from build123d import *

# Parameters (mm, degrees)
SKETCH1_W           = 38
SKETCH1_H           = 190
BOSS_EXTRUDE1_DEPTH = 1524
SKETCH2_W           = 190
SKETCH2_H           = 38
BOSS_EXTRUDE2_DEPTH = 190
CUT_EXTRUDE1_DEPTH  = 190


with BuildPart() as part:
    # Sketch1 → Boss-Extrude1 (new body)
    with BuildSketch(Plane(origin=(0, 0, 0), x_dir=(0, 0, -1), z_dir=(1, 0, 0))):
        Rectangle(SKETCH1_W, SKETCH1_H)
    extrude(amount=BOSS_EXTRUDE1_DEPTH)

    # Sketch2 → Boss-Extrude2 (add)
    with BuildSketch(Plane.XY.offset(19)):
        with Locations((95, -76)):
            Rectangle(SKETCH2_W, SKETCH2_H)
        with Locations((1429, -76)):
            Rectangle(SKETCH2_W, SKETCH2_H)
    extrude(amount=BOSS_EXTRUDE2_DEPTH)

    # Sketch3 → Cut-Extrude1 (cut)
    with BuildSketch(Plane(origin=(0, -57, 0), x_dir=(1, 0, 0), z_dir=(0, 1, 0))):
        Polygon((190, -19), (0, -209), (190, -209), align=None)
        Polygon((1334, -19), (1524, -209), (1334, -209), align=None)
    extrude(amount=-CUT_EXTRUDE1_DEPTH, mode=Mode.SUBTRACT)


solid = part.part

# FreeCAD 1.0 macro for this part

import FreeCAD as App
import Part
import Sketcher

V = App.Vector


def add_polygon(sketch, points):
    """Adds a closed chain of lines whose ends are joined by coincident constraints."""
    first, n = sketch.GeometryCount, len(points)
    for a, b in zip(points, points[1:] + points[:1]):
        sketch.addGeometry(Part.LineSegment(App.Vector(*a, 0), App.Vector(*b, 0)), False)
    for i in range(n):
        sketch.addConstraint(Sketcher.Constraint("Coincident", first + i, 2, first + (i + 1) % n, 1))

doc = App.newDocument("Part")
body = doc.addObject("PartDesign::Body", "Body")

# Sketch on YZ plane
sketch1 = body.newObject("Sketcher::SketchObject", "Sketch")
sketch1.AttachmentSupport = (doc.getObject("YZ_Plane"), [""])
sketch1.MapMode = "FlatFace"
add_polygon(sketch1, [(95, 19), (-95, 19), (-95, -19), (95, -19)])  # lines 0-3
sketch1.addConstraint([
    Sketcher.Constraint("Horizontal", 0),
    Sketcher.Constraint("Vertical", 1),
    Sketcher.Constraint("Horizontal", 2),
    Sketcher.Constraint("Vertical", 3),
    Sketcher.Constraint("Symmetric", 0, 2, 2, 2, -1, 1),
    Sketcher.Constraint("DistanceX", 0, 2, 0, 1, 190.0),
    Sketcher.Constraint("DistanceY", 1, 2, 1, 1, 38.0),
])
pad1 = body.newObject("PartDesign::Pad", "Pad")
pad1.Profile = sketch1
pad1.Length = 1524

# Sketch on XY plane
sketch2 = body.newObject("Sketcher::SketchObject", "Sketch001")
sketch2.AttachmentSupport = (doc.getObject("XY_Plane"), [""])
sketch2.MapMode = "FlatFace"
sketch2.AttachmentOffset = App.Placement(V(0, 0, 19), App.Rotation())
add_polygon(sketch2, [(0, -57), (0, -95), (190, -95), (190, -57)])  # lines 0-3
add_polygon(sketch2, [(1334, -57), (1334, -95), (1524, -95), (1524, -57)])  # lines 4-7
sketch2.addConstraint([
    Sketcher.Constraint("Vertical", 0),
    Sketcher.Constraint("Horizontal", 1),
    Sketcher.Constraint("Vertical", 2),
    Sketcher.Constraint("Horizontal", 3),
    Sketcher.Constraint("Vertical", 4),
    Sketcher.Constraint("Horizontal", 5),
    Sketcher.Constraint("Vertical", 6),
    Sketcher.Constraint("Horizontal", 7),
    Sketcher.Constraint("PointOnObject", 0, 2, -2),
    Sketcher.Constraint("Horizontal", 1, 2, 4, 2),
    Sketcher.Constraint("Horizontal", 3, 2, 6, 2),
    Sketcher.Constraint("Equal", 3, 5),
    Sketcher.Constraint("DistanceX", 1, 1, 1, 2, 190.0),
    Sketcher.Constraint("DistanceY", 0, 2, 0, 1, 38.0),
    Sketcher.Constraint("DistanceY", 0, 2, -1, 1, 95.0),
    Sketcher.Constraint("DistanceX", -1, 1, 4, 2, 1334.0),
])
pad2 = body.newObject("PartDesign::Pad", "Pad001")
pad2.Profile = sketch2
pad2.Length = 190

# Sketch on XZ plane
sketch3 = body.newObject("Sketcher::SketchObject", "Sketch002")
sketch3.AttachmentSupport = (doc.getObject("XZ_Plane"), [""])
sketch3.MapMode = "FlatFace"
sketch3.AttachmentOffset = App.Placement(V(0, 0, 57), App.Rotation())
add_polygon(sketch3, [(190, 19), (0, 209), (190, 209)])  # lines 0-2
add_polygon(sketch3, [(1524, 209), (1334, 19), (1334, 209)])  # lines 3-5
sketch3.addConstraint([
    Sketcher.Constraint("Horizontal", 1),
    Sketcher.Constraint("Vertical", 2),
    Sketcher.Constraint("Vertical", 4),
    Sketcher.Constraint("Horizontal", 5),
    Sketcher.Constraint("PointOnObject", 0, 2, -2),
    Sketcher.Constraint("Perpendicular", 0, 3),
    Sketcher.Constraint("Horizontal", 2, 2, 3, 2),
    Sketcher.Constraint("Horizontal", 1, 2, 4, 2),
    Sketcher.Constraint("Equal", 1, 5),
    Sketcher.Constraint("DistanceX", 1, 1, 1, 2, 190.0),
    Sketcher.Constraint("DistanceY", -1, 1, 0, 2, 209.0),
    Sketcher.Constraint("DistanceX", -1, 1, 3, 2, 1334.0),
])
pocket1 = body.newObject("PartDesign::Pocket", "Pocket")
pocket1.Profile = sketch3
pocket1.Length = 190
pocket1.Reversed = True

doc.recompute()
